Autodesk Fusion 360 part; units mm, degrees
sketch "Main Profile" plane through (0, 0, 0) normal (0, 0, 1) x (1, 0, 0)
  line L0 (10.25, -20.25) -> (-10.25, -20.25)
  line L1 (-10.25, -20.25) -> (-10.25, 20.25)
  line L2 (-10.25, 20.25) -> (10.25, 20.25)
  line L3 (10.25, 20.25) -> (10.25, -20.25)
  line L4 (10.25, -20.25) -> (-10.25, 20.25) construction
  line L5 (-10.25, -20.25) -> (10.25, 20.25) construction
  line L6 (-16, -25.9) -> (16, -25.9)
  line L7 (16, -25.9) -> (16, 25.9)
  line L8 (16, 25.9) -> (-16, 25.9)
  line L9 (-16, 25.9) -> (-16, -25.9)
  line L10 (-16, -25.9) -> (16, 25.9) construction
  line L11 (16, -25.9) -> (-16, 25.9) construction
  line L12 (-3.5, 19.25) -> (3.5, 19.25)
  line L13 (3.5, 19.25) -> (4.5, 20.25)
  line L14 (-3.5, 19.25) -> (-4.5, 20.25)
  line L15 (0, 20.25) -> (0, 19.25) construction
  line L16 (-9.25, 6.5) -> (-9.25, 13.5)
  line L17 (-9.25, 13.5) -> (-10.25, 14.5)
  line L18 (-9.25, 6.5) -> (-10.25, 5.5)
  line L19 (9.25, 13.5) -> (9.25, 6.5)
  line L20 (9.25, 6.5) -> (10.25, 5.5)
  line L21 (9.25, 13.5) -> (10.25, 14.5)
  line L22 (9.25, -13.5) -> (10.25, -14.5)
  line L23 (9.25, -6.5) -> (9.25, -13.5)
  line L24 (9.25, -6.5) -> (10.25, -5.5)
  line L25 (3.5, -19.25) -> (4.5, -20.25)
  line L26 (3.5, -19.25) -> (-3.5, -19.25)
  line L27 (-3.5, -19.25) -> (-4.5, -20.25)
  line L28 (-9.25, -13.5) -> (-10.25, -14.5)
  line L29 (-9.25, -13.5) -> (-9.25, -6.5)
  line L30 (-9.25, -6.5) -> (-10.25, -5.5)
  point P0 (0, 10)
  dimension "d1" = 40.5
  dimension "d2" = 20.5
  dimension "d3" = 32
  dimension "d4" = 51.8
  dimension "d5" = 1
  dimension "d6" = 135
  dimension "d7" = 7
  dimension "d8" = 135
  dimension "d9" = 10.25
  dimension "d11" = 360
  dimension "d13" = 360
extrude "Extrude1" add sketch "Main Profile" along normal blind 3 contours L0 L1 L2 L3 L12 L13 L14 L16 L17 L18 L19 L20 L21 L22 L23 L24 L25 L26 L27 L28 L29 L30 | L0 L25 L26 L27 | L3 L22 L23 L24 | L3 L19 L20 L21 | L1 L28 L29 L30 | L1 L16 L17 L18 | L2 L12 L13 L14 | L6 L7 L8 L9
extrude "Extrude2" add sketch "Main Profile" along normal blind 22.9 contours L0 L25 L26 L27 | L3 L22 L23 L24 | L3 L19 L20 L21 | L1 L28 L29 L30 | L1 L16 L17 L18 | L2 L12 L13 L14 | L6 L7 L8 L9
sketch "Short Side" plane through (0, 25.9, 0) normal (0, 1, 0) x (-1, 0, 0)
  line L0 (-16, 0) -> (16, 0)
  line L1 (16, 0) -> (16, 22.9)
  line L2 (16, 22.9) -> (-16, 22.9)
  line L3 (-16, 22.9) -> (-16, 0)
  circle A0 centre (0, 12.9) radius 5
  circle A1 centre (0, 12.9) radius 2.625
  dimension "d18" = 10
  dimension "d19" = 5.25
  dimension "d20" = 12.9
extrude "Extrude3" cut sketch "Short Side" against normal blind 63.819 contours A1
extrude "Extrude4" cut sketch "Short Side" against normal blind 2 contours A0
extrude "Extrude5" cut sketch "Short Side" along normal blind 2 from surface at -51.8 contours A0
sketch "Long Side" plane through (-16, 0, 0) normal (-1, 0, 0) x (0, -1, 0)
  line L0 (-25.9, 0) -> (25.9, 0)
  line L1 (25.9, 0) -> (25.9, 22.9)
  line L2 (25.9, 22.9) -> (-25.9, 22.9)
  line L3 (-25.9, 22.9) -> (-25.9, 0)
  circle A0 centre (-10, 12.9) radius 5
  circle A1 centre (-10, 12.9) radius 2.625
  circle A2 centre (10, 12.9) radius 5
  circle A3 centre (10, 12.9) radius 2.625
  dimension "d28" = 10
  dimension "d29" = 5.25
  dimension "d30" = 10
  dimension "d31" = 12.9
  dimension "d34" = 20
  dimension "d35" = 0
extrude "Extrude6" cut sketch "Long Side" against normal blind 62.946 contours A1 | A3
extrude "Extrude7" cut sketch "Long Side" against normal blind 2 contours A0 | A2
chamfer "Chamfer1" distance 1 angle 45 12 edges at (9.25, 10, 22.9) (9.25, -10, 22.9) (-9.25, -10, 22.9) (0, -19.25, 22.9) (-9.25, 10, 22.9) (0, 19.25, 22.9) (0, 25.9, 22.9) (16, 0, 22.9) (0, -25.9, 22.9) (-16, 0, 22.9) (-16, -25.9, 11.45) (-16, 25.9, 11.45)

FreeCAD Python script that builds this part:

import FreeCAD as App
import Part
import Sketcher
Q = App.Units.Quantity


def edges_at(feature, points):
    """Names of the edges that pass closest to the given points."""
    edges = feature.Shape.Edges
    near = lambda p: min(range(len(edges)), key=lambda i: edges[i].distToShape(Part.Vertex(*p))[0])
    return sorted({f"Edge{near(p) + 1}" for p in points})


def add_polygon(sketch, points):
    """Adds a closed chain of lines whose ends are joined by coincident constraints."""
    first, n = sketch.GeometryCount, len(points)
    for a, b in zip(points, points[1:] + points[:1]):
        sketch.addGeometry(Part.LineSegment(App.Vector(*a, 0), App.Vector(*b, 0)), False)
    for i in range(n):
        sketch.addConstraint(Sketcher.Constraint("Coincident", first + i, 2, first + (i + 1) % n, 1))

doc = App.newDocument("Part")
params = doc.addObject("Spreadsheet::Sheet", "Params")
for row, (alias, value) in enumerate([
    ("sketch1_width", "32 mm"),
    ("sketch1_height", "51.8 mm"),
    ("pad1_length", "3 mm"),
    ("sketch2_width", "32 mm"),
    ("sketch2_width2", "7 mm"),
    ("sketch2_height", "51.8 mm"),
    ("sketch2_height2", "11 mm"),
    ("pad2_length", "22.9 mm"),
    ("sketch3_diameter", "5.25 mm"),
    ("pocket1_length", "63.819 mm"),
    ("sketch4_diameter", "10 mm"),
    ("sketch4_diameter2", "5.25 mm"),
    ("pocket2_length", "2 mm"),
    ("sketch5_diameter", "10 mm"),
    ("sketch5_diameter2", "5.25 mm"),
    ("pocket3_length", "2 mm"),
    ("sketch6_diameter", "5.25 mm"),
    ("pocket4_length", "62.946 mm"),
    ("sketch7_diameter", "10 mm"),
    ("sketch7_diameter2", "5.25 mm"),
    ("pocket5_length", "2 mm"),
    ("chamfer_size", "1 mm"),
], start=1):
    params.set(f"A{row}", alias)
    params.set(f"B{row}", "=" + value)
    params.setAlias(f"B{row}", alias)

body = doc.addObject("PartDesign::Body", "Body")

# Sketch on XY plane
sketch1 = body.newObject("Sketcher::SketchObject", "Sketch")
sketch1.AttachmentSupport = (doc.getObject("XY_Plane"), [""])
sketch1.MapMode = "FlatFace"
add_polygon(sketch1, [(-16, 25.9), (-16, -25.9), (16, -25.9), (16, 25.9)])  # lines 0-3
sketch1.addConstraint([
    Sketcher.Constraint("Vertical", 0),
    Sketcher.Constraint("Horizontal", 1),
    Sketcher.Constraint("Vertical", 2),
    Sketcher.Constraint("Horizontal", 3),
    Sketcher.Constraint("Symmetric", 0, 2, 2, 2, -1, 1),
    Sketcher.Constraint("DistanceX", 1, 1, 1, 2, Q("32 mm")),
    Sketcher.Constraint("DistanceY", 0, 2, 0, 1, Q("51.8 mm")),
])
sketch1.setExpression("Constraints[9]", "Params.sketch1_width")
sketch1.setExpression("Constraints[10]", "Params.sketch1_height")
pad1 = body.newObject("PartDesign::Pad", "Pad")
pad1.Profile = sketch1
pad1.setExpression("Length", "Params.pad1_length")

# Sketch on XY plane
sketch2 = body.newObject("Sketcher::SketchObject", "Sketch001")
sketch2.AttachmentSupport = (doc.getObject("XY_Plane"), [""])
sketch2.MapMode = "FlatFace"
add_polygon(sketch2, [(-16, 25.9), (-16, -25.9), (16, -25.9), (16, 25.9)])  # lines 0-3
add_polygon(sketch2, [(-3.5, -19.25), (-4.5, -20.25), (-10.25, -20.25), (-10.25, -14.5), (-9.25, -13.5), (-9.25, -6.5), (-10.25, -5.5), (-10.25, 5.5), (-9.25, 6.5), (-9.25, 13.5), (-10.25, 14.5), (-10.25, 20.25), (-4.5, 20.25), (-3.5, 19.25), (3.5, 19.25), (4.5, 20.25), (10.25, 20.25), (10.25, 14.5), (9.25, 13.5), (9.25, 6.5), (10.25, 5.5), (10.25, -5.5), (9.25, -6.5), (9.25, -13.5), (10.25, -14.5), (10.25, -20.25), (4.5, -20.25), (3.5, -19.25)])  # lines 4-31
sketch2.addConstraint([
    Sketcher.Constraint("Vertical", 0),
    Sketcher.Constraint("Horizontal", 1),
    Sketcher.Constraint("Vertical", 2),
    Sketcher.Constraint("Horizontal", 3),
    Sketcher.Constraint("Horizontal", 5),
    Sketcher.Constraint("Vertical", 6),
    Sketcher.Constraint("Vertical", 8),
    Sketcher.Constraint("Vertical", 10),
    Sketcher.Constraint("Vertical", 12),
    Sketcher.Constraint("Vertical", 14),
    Sketcher.Constraint("Horizontal", 15),
    Sketcher.Constraint("Horizontal", 17),
    Sketcher.Constraint("Horizontal", 19),
    Sketcher.Constraint("Vertical", 20),
    Sketcher.Constraint("Vertical", 22),
    Sketcher.Constraint("Vertical", 24),
    Sketcher.Constraint("Vertical", 26),
    Sketcher.Constraint("Vertical", 28),
    Sketcher.Constraint("Horizontal", 29),
    Sketcher.Constraint("Horizontal", 31),
    Sketcher.Constraint("Symmetric", 0, 2, 2, 2, -1, 1),
    Sketcher.Constraint("Symmetric", 4, 2, 18, 2, -1, 1),
    Sketcher.Constraint("Symmetric", 6, 2, 20, 2, -1, 1),
    Sketcher.Constraint("Symmetric", 7, 2, 21, 2, -1, 1),
    Sketcher.Constraint("Symmetric", 9, 2, 23, 2, -1, 1),
    Sketcher.Constraint("Symmetric", 11, 2, 25, 2, -1, 1),
    Sketcher.Constraint("Symmetric", 13, 2, 27, 2, -1, 1),
    Sketcher.Constraint("Symmetric", 15, 2, 29, 2, -1, 1),
    Sketcher.Constraint("Symmetric", 16, 2, 30, 2, -1, 1),
    Sketcher.Constraint("Symmetric", 15, 2, 18, 2, -2),
    Sketcher.Constraint("Symmetric", 13, 2, 20, 2, -2),
    Sketcher.Constraint("Symmetric", 12, 2, 21, 2, -2),
    Sketcher.Constraint("Parallel", 4, 7),
    Sketcher.Constraint("Perpendicular", 7, 9),
    Sketcher.Constraint("Perpendicular", 9, 11),
    Sketcher.Constraint("Perpendicular", 11, 13),
    Sketcher.Constraint("Parallel", 13, 16),
    Sketcher.Constraint("Perpendicular", 16, 18),
    Sketcher.Constraint("Perpendicular", 21, 23),
    Sketcher.Constraint("Perpendicular", 23, 25),
    Sketcher.Constraint("Perpendicular", 25, 27),
    Sketcher.Constraint("Horizontal", 11, 2, 22, 2),
    Sketcher.Constraint("Vertical", 6, 2, 9, 2),
    Sketcher.Constraint("Equal", 29, 6),
    Sketcher.Constraint("Equal", 31, 8),
    Sketcher.Constraint("Equal", 4, 7),
    Sketcher.Constraint("DistanceX", 1, 1, 1, 2, Q("32 mm")),
    Sketcher.Constraint("DistanceX", 17, 1, 17, 2, Q("7 mm")),
    Sketcher.Constraint("DistanceY", 0, 2, 0, 1, Q("51.8 mm")),
    Sketcher.Constraint("DistanceX", 6, 2, 7, 2, Q("1 mm")),
    Sketcher.Constraint("DistanceY", 10, 1, 10, 2, Q("11 mm")),
    Sketcher.Constraint("DistanceX", 5, 2, -1, 1, Q("10.25 mm")),
])
sketch2.setExpression("Constraints[78]", "Params.sketch2_width")
sketch2.setExpression("Constraints[79]", "Params.sketch2_width2")
sketch2.setExpression("Constraints[80]", "Params.sketch2_height")
sketch2.setExpression("Constraints[82]", "Params.sketch2_height2")
pad2 = body.newObject("PartDesign::Pad", "Pad001")
pad2.Profile = sketch2
pad2.setExpression("Length", "Params.pad2_length")

# Sketch on XZ plane
sketch3 = body.newObject("Sketcher::SketchObject", "Sketch002")
sketch3.AttachmentSupport = (doc.getObject("XZ_Plane"), [""])
sketch3.MapMode = "FlatFace"
sketch3.AttachmentOffset = App.Placement(App.Vector(0, 0, -25.9), App.Rotation())
sketch3.addGeometry(Part.Circle(App.Vector(0, 12.9, 0), App.Vector(0, 0, 1), 2.625), False)
sketch3.addConstraint([
    Sketcher.Constraint("PointOnObject", 0, 3, -2),
    Sketcher.Constraint("Diameter", 0, Q("5.25 mm")),
    Sketcher.Constraint("DistanceY", -1, 1, 0, 3, Q("12.9 mm")),
])
sketch3.setExpression("Constraints[1]", "Params.sketch3_diameter")
pocket1 = body.newObject("PartDesign::Pocket", "Pocket")
pocket1.Profile = sketch3
pocket1.setExpression("Length", "Params.pocket1_length")
pocket1.Reversed = True

# Sketch on XZ plane
sketch4 = body.newObject("Sketcher::SketchObject", "Sketch003")
sketch4.AttachmentSupport = (doc.getObject("XZ_Plane"), [""])
sketch4.MapMode = "FlatFace"
sketch4.AttachmentOffset = App.Placement(App.Vector(0, 0, -25.9), App.Rotation())
sketch4.addGeometry([
    Part.Circle(App.Vector(0, 12.9, 0), App.Vector(0, 0, 1), 5),
    Part.Circle(App.Vector(0, 12.9, 0), App.Vector(0, 0, 1), 2.625),
], False)
sketch4.addConstraint([
    Sketcher.Constraint("Coincident", 1, 3, 0, 3),
    Sketcher.Constraint("PointOnObject", 0, 3, -2),
    Sketcher.Constraint("Diameter", 0, Q("10 mm")),
    Sketcher.Constraint("Diameter", 1, Q("5.25 mm")),
    Sketcher.Constraint("DistanceY", -1, 1, 0, 3, Q("12.9 mm")),
])
sketch4.setExpression("Constraints[2]", "Params.sketch4_diameter")
sketch4.setExpression("Constraints[3]", "Params.sketch4_diameter2")
pocket2 = body.newObject("PartDesign::Pocket", "Pocket001")
pocket2.Profile = sketch4
pocket2.setExpression("Length", "Params.pocket2_length")
pocket2.Reversed = True

# Sketch on XZ plane
sketch5 = body.newObject("Sketcher::SketchObject", "Sketch004")
sketch5.AttachmentSupport = (doc.getObject("XZ_Plane"), [""])
sketch5.MapMode = "FlatFace"
sketch5.AttachmentOffset = App.Placement(App.Vector(0, 0, 25.9), App.Rotation())
sketch5.addGeometry([
    Part.Circle(App.Vector(0, 12.9, 0), App.Vector(0, 0, 1), 5),
    Part.Circle(App.Vector(0, 12.9, 0), App.Vector(0, 0, 1), 2.625),
], False)
sketch5.addConstraint([
    Sketcher.Constraint("Coincident", 1, 3, 0, 3),
    Sketcher.Constraint("PointOnObject", 0, 3, -2),
    Sketcher.Constraint("Diameter", 0, Q("10 mm")),
    Sketcher.Constraint("Diameter", 1, Q("5.25 mm")),
    Sketcher.Constraint("DistanceY", -1, 1, 0, 3, Q("12.9 mm")),
])
sketch5.setExpression("Constraints[2]", "Params.sketch5_diameter")
sketch5.setExpression("Constraints[3]", "Params.sketch5_diameter2")
pocket3 = body.newObject("PartDesign::Pocket", "Pocket002")
pocket3.Profile = sketch5
pocket3.setExpression("Length", "Params.pocket3_length")

# Sketch on YZ plane
sketch6 = body.newObject("Sketcher::SketchObject", "Sketch005")
sketch6.AttachmentSupport = (doc.getObject("YZ_Plane"), [""])
sketch6.MapMode = "FlatFace"
sketch6.AttachmentOffset = App.Placement(App.Vector(0, 0, -16), App.Rotation())
sketch6.addGeometry([
    Part.Circle(App.Vector(10, 12.9, 0), App.Vector(0, 0, 1), 2.625),
    Part.Circle(App.Vector(-10, 12.9, 0), App.Vector(0, 0, 1), 2.625),
], False)
sketch6.addConstraint([
    Sketcher.Constraint("Equal", 0, 1),
    Sketcher.Constraint("Symmetric", 0, 3, 1, 3, -2),
    Sketcher.Constraint("Diameter", 0, Q("5.25 mm")),
    Sketcher.Constraint("DistanceX", -1, 1, 0, 3, Q("10 mm")),
    Sketcher.Constraint("DistanceY", -1, 1, 0, 3, Q("12.9 mm")),
])
sketch6.setExpression("Constraints[2]", "Params.sketch6_diameter")
pocket4 = body.newObject("PartDesign::Pocket", "Pocket003")
pocket4.Profile = sketch6
pocket4.setExpression("Length", "Params.pocket4_length")
pocket4.Reversed = True

# Sketch on YZ plane
sketch7 = body.newObject("Sketcher::SketchObject", "Sketch006")
sketch7.AttachmentSupport = (doc.getObject("YZ_Plane"), [""])
sketch7.MapMode = "FlatFace"
sketch7.AttachmentOffset = App.Placement(App.Vector(0, 0, -16), App.Rotation())
sketch7.addGeometry([
    Part.Circle(App.Vector(10, 12.9, 0), App.Vector(0, 0, 1), 5),
    Part.Circle(App.Vector(10, 12.9, 0), App.Vector(0, 0, 1), 2.625),
    Part.Circle(App.Vector(-10, 12.9, 0), App.Vector(0, 0, 1), 5),
    Part.Circle(App.Vector(-10, 12.9, 0), App.Vector(0, 0, 1), 2.625),
], False)
sketch7.addConstraint([
    Sketcher.Constraint("Coincident", 1, 3, 0, 3),
    Sketcher.Constraint("Coincident", 3, 3, 2, 3),
    Sketcher.Constraint("Equal", 0, 2),
    Sketcher.Constraint("Equal", 1, 3),
    Sketcher.Constraint("Symmetric", 0, 3, 2, 3, -2),
    Sketcher.Constraint("Diameter", 0, Q("10 mm")),
    Sketcher.Constraint("Diameter", 1, Q("5.25 mm")),
    Sketcher.Constraint("DistanceX", -1, 1, 0, 3, Q("10 mm")),
    Sketcher.Constraint("DistanceY", -1, 1, 0, 3, Q("12.9 mm")),
])
sketch7.setExpression("Constraints[5]", "Params.sketch7_diameter")
sketch7.setExpression("Constraints[6]", "Params.sketch7_diameter2")
pocket5 = body.newObject("PartDesign::Pocket", "Pocket004")
pocket5.Profile = sketch7
pocket5.setExpression("Length", "Params.pocket5_length")
pocket5.Reversed = True
doc.recompute()

chamfer = body.newObject("PartDesign::Chamfer", "Chamfer")
chamfer.Base = (pocket5, edges_at(pocket5, [
    (9.25, 10, 22.9),
    (9.25, -10, 22.9),
    (-9.25, -10, 22.9),
    (0, -19.25, 22.9),
    (-9.25, 10, 22.9),
    (0, 19.25, 22.9),
    (0, 25.9, 22.9),
    (16, 0, 22.9),
    (0, -25.9, 22.9),
    (-16, 0, 22.9),
    (-16, -25.9, 11.45),
    (-16, 25.9, 11.45),
]))
chamfer.setExpression("Size", "Params.chamfer_size")

doc.recompute()
